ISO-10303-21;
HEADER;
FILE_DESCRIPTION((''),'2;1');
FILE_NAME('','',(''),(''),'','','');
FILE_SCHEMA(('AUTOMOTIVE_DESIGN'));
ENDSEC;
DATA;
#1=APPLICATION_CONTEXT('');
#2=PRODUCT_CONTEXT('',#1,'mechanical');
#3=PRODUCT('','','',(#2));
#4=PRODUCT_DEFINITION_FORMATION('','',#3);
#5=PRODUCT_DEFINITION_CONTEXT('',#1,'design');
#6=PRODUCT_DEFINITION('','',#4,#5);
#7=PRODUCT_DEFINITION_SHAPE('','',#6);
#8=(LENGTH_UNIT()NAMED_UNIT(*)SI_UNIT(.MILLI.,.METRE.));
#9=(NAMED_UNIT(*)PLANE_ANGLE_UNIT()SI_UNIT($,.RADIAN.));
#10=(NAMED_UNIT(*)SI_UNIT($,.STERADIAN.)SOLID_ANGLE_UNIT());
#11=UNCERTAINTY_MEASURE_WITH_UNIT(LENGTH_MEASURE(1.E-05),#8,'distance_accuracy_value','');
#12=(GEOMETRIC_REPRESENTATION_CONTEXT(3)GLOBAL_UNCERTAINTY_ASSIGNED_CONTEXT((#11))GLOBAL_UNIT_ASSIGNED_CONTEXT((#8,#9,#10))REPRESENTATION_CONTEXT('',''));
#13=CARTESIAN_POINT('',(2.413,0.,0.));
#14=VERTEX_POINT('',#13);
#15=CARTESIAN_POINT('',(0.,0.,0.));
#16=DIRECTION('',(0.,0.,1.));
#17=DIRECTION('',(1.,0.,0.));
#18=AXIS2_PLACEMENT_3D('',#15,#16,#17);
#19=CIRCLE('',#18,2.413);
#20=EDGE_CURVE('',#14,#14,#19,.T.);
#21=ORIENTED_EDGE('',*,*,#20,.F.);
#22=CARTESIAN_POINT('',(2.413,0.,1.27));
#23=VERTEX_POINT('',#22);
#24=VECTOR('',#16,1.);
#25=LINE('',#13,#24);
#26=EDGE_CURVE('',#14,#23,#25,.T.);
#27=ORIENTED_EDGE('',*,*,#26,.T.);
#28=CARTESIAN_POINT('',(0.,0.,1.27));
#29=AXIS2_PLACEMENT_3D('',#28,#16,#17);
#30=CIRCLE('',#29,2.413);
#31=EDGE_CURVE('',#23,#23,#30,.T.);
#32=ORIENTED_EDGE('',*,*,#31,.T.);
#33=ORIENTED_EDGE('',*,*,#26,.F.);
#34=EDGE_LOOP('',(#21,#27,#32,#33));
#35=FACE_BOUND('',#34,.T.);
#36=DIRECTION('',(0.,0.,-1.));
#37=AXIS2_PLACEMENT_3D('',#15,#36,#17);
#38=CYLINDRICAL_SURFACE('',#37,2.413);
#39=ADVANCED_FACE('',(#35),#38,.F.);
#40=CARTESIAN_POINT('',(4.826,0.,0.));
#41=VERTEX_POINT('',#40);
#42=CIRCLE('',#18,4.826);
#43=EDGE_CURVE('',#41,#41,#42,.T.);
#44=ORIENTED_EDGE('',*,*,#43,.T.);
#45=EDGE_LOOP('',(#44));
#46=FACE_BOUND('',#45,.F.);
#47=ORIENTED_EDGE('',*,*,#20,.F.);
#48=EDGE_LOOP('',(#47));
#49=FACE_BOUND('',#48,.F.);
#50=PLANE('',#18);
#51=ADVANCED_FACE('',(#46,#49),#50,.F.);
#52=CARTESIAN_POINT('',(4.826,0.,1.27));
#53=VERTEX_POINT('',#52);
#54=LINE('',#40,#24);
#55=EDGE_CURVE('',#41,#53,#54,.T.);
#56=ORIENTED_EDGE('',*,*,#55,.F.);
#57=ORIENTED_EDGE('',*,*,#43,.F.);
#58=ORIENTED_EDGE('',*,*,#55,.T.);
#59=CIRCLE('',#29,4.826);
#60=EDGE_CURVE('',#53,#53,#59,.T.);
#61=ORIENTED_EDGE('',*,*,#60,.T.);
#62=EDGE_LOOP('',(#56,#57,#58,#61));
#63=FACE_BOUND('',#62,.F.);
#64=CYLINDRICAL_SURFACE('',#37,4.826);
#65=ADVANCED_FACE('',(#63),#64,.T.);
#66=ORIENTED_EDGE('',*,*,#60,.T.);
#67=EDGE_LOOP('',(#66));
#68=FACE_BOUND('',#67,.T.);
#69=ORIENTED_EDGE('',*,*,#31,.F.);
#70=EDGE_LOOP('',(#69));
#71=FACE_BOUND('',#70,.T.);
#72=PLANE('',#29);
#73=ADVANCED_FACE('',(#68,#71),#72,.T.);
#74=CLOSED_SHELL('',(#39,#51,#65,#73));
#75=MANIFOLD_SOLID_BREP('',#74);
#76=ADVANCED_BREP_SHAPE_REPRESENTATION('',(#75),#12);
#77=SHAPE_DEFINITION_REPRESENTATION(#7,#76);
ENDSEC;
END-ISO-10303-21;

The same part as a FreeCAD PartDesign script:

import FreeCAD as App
import Part
import Sketcher

V = App.Vector
Q = App.Units.Quantity

doc = App.newDocument("Part")
body = doc.addObject("PartDesign::Body", "Body")

# Sketch on XY plane
sketch1 = body.newObject("Sketcher::SketchObject", "Sketch")
sketch1.AttachmentSupport = (doc.getObject("XY_Plane"), [""])
sketch1.MapMode = "FlatFace"
sketch1.addGeometry([
    Part.Circle(V(0, 0, 0), V(0, 0, 1), 4.8),
    Part.Circle(V(0, 0, 0), V(0, 0, 1), 2.4),
], False)
sketch1.addConstraint([
    Sketcher.Constraint("Coincident", 0, 3, -1, 1),
    Sketcher.Constraint("Coincident", 1, 3, -1, 1),
    Sketcher.Constraint("Diameter", 0, Q("0.38 in")),
    Sketcher.Constraint("Diameter", 1, Q("0.19 in")),
])
pad1 = body.newObject("PartDesign::Pad", "Pad")
pad1.Profile = sketch1
pad1.Length = Q("0.05 in")

doc.recompute()
